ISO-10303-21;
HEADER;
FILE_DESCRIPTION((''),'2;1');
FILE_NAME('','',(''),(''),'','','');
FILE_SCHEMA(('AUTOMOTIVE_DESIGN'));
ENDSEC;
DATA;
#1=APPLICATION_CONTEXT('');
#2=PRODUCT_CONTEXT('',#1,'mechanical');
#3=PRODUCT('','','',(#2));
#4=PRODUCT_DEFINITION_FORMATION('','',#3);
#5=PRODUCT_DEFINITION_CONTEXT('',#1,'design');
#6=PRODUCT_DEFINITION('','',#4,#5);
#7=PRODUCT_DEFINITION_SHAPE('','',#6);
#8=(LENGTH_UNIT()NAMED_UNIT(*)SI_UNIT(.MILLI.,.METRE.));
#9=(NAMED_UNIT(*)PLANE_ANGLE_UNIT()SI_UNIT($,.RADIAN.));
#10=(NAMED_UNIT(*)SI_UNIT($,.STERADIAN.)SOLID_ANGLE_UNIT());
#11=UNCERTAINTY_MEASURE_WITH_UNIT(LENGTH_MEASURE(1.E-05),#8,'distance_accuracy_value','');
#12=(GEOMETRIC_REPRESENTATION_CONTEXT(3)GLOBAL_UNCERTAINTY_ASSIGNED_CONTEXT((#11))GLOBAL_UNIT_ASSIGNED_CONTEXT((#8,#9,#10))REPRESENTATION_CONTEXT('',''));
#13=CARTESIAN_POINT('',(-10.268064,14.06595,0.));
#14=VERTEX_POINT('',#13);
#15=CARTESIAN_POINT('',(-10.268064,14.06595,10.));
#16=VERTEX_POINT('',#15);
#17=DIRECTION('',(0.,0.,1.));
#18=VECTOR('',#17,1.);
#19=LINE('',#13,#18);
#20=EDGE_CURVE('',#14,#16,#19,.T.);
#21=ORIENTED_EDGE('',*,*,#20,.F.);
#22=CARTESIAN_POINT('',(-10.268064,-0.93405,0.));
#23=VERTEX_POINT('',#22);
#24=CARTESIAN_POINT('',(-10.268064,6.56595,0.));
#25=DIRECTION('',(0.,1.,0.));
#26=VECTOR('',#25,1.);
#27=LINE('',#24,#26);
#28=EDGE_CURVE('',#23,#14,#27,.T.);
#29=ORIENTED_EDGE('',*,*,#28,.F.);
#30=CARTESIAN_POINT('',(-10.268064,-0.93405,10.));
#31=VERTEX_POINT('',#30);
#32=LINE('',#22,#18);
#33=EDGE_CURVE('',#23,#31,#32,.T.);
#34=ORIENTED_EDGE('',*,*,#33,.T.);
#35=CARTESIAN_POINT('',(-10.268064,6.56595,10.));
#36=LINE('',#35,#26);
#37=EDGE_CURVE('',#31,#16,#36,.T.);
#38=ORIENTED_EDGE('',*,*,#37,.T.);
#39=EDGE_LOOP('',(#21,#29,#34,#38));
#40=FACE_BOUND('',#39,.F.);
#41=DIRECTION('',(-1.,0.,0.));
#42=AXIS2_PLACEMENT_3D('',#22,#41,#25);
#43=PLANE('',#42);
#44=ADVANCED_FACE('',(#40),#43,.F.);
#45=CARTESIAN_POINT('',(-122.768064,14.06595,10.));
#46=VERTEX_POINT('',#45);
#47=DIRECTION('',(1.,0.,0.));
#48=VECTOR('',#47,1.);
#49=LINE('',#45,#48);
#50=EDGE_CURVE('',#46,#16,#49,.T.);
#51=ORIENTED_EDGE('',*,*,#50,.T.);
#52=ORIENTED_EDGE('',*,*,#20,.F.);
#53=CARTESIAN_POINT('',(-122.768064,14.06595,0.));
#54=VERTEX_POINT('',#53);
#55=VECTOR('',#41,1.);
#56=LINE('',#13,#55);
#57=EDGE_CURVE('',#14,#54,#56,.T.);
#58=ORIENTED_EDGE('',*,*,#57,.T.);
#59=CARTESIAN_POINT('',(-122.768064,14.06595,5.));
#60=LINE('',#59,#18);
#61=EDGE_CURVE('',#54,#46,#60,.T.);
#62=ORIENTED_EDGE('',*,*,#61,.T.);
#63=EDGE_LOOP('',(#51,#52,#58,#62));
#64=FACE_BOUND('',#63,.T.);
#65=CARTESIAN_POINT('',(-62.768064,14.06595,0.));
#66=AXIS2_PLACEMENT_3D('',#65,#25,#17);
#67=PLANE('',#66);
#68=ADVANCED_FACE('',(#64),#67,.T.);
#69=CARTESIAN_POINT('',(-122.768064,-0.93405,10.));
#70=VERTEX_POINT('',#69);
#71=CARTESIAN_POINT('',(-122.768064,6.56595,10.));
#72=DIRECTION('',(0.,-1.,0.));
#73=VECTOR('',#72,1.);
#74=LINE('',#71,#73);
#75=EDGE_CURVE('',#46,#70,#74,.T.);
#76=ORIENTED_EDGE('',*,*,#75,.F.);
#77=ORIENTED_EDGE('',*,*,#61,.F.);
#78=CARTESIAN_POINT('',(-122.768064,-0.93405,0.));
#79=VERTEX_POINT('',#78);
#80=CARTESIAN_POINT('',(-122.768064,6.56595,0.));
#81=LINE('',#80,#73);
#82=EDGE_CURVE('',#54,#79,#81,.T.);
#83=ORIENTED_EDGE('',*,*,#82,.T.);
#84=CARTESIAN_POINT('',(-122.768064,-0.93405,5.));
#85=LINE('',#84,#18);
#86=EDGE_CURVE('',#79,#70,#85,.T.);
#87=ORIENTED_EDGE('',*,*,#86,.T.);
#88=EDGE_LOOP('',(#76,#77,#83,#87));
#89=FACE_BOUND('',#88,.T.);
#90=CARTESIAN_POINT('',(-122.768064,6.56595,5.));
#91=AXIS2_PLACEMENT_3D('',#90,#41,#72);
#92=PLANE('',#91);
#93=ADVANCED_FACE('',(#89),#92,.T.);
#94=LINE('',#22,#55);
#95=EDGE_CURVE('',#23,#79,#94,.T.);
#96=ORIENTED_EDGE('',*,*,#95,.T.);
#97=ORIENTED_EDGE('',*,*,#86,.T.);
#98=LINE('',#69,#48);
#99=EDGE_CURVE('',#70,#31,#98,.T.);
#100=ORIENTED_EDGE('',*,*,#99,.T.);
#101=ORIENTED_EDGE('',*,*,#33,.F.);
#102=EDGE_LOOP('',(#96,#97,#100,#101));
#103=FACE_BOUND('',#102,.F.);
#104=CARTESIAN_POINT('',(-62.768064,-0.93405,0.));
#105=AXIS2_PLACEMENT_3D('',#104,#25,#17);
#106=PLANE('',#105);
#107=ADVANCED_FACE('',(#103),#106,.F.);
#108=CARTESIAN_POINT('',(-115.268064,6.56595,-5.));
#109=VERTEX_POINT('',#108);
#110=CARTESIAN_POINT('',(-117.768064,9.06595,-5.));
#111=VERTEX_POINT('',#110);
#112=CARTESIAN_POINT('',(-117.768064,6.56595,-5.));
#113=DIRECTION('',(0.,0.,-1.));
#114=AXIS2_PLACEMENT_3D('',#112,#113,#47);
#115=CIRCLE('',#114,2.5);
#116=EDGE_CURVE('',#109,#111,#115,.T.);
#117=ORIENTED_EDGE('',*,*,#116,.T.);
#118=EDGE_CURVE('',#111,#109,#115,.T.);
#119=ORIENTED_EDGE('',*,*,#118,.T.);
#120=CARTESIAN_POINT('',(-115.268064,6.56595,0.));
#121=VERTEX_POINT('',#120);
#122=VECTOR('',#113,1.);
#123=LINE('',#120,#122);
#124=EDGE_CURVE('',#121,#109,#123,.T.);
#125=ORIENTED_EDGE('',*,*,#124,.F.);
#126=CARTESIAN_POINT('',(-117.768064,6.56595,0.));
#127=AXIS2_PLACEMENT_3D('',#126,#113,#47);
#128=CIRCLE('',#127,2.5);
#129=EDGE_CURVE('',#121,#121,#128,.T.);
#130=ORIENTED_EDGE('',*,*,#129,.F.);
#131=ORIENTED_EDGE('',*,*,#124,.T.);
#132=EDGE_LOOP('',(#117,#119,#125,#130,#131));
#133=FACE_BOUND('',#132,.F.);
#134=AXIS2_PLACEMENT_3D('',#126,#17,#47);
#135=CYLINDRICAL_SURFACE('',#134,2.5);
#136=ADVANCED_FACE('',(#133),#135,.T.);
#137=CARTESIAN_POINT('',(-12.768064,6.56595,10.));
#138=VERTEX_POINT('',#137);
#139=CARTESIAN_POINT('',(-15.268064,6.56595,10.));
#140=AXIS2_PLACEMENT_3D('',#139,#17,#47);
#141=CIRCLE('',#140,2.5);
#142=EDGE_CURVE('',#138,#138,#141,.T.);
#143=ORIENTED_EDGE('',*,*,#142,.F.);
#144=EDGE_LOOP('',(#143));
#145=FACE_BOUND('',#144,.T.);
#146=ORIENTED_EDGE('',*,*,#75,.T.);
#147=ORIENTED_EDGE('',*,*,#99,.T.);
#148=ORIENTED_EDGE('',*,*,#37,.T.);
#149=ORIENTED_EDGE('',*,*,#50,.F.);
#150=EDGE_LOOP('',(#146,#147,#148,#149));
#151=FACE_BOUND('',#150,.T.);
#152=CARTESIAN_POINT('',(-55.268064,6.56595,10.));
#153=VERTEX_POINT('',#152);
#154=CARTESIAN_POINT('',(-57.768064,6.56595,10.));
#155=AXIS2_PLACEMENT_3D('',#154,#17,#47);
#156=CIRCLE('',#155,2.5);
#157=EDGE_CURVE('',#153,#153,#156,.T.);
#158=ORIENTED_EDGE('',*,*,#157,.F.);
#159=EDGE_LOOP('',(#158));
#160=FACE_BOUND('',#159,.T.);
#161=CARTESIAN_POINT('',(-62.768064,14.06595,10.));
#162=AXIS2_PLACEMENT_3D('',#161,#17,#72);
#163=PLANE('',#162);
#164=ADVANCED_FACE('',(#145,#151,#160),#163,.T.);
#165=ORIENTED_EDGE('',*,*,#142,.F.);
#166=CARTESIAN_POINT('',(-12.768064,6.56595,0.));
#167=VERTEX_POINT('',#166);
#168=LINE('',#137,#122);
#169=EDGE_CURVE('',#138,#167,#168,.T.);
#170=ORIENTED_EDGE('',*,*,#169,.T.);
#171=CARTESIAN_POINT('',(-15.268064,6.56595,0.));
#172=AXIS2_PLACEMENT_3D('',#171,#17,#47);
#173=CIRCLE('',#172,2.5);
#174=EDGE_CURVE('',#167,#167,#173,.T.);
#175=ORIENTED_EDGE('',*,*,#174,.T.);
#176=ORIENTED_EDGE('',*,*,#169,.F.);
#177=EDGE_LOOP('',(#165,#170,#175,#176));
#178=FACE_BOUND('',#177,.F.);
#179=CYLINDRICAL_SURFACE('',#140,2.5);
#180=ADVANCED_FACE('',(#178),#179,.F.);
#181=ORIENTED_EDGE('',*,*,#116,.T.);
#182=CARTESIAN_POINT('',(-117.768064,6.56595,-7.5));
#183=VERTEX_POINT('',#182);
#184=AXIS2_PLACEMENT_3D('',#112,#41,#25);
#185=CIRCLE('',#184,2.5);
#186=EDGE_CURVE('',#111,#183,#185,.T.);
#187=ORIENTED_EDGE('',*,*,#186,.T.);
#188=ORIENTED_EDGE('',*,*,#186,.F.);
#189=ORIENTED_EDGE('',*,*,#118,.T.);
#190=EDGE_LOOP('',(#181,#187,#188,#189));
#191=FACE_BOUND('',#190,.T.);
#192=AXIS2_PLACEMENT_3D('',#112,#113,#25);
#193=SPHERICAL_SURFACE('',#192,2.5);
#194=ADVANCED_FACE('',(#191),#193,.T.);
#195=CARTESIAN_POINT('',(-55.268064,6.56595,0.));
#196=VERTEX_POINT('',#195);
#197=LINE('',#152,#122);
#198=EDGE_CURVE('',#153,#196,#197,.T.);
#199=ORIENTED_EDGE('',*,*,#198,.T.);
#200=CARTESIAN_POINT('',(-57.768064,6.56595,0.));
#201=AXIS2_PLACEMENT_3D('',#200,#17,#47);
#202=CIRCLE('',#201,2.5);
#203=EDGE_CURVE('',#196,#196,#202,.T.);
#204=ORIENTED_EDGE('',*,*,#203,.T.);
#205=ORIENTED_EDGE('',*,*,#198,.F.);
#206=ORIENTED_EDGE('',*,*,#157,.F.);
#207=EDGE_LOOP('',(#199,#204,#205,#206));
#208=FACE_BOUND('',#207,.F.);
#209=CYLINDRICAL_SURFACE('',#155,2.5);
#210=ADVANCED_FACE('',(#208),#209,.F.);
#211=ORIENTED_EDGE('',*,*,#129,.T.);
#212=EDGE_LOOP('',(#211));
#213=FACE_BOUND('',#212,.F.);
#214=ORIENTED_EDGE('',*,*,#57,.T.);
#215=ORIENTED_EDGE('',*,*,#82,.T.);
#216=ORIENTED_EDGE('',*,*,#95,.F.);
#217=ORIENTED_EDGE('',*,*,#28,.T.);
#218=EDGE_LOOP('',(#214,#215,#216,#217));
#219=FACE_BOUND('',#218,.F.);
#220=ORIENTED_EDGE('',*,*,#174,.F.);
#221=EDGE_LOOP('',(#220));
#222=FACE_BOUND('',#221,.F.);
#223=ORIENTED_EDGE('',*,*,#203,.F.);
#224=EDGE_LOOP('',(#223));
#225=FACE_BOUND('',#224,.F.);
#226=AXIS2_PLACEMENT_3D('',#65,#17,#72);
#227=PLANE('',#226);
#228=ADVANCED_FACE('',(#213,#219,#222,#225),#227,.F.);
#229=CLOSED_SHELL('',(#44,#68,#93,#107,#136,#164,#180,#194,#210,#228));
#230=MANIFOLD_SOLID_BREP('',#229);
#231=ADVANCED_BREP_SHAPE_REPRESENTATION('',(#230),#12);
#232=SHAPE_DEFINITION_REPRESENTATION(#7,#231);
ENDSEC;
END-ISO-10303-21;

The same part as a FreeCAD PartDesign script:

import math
import FreeCAD as App
import Part
import Sketcher

V = App.Vector
Q = App.Units.Quantity


def add_polygon(sketch, points):
    """Adds a closed chain of lines whose ends are joined by coincident constraints."""
    first, n = sketch.GeometryCount, len(points)
    for a, b in zip(points, points[1:] + points[:1]):
        sketch.addGeometry(Part.LineSegment(App.Vector(*a, 0), App.Vector(*b, 0)), False)
    for i in range(n):
        sketch.addConstraint(Sketcher.Constraint("Coincident", first + i, 2, first + (i + 1) % n, 1))

doc = App.newDocument("Part")
body = doc.addObject("PartDesign::Body", "Body")

sketch1 = doc.addObject("Sketcher::SketchObject", "Sketch")
body.addObject(sketch1)
sketch1.AttachmentSupport = (doc.XY_Plane, [""])
sketch1.MapMode = "FlatFace"
add_polygon(sketch1, [(-62.768064, 14.06595), (-62.768064, -0.93405), (-10.268064, -0.93405), (-10.268064, 14.06595)])
sketch1.addConstraint(Sketcher.Constraint("Vertical", 0))
sketch1.addConstraint(Sketcher.Constraint("Horizontal", 1))
sketch1.addConstraint(Sketcher.Constraint("Vertical", 2))
sketch1.addConstraint(Sketcher.Constraint("Horizontal", 3))
sketch1.addConstraint(Sketcher.Constraint("DistanceY", 0, 2, 0, 1, Q("15 mm")))
sketch1.addConstraint(Sketcher.Constraint("DistanceX", 1, 1, 1, 2, Q("52.5 mm")))
sketch1.addConstraint(Sketcher.Constraint("DistanceY", 0, 2, -1, 1, Q("0.93405 mm")))
sketch1.addConstraint(Sketcher.Constraint("DistanceX", 0, 2, -1, 1, Q("62.768064 mm")))
pad1 = doc.addObject("PartDesign::Pad", "Pad")
body.addObject(pad1)
pad1.Profile = sketch1
pad1.Length = 10

sketch2 = doc.addObject("Sketcher::SketchObject", "Sketch001")
body.addObject(sketch2)
sketch2.AttachmentSupport = (doc.XY_Plane, [""])
sketch2.MapMode = "FlatFace"
sketch2.AttachmentOffset = App.Placement(V(0, 0, 10), App.Rotation())
sketch2.addGeometry(Part.Circle(V(-15.268064, 6.56595, 0), V(0, 0, 1), 2.5), False)
sketch2.addGeometry(Part.Circle(V(-57.768064, 6.56595, 0), V(0, 0, 1), 2.5), False)
sketch2.addConstraint(Sketcher.Constraint("Equal", 0, 1))
sketch2.addConstraint(Sketcher.Constraint("Horizontal", 0, 3, 1, 3))
sketch2.addConstraint(Sketcher.Constraint("Diameter", 0, Q("5 mm")))
sketch2.addConstraint(Sketcher.Constraint("DistanceX", 1, 3, 0, 3, Q("42.5 mm")))
sketch2.addConstraint(Sketcher.Constraint("DistanceY", -1, 1, 0, 3, Q("6.56595 mm")))
sketch2.addConstraint(Sketcher.Constraint("DistanceX", 0, 3, -1, 1, Q("15.268064 mm")))
pocket1 = doc.addObject("PartDesign::Pocket", "Pocket")
body.addObject(pocket1)
pocket1.Profile = sketch2
pocket1.Length = 25

sketch3 = doc.addObject("Sketcher::SketchObject", "Sketch002")
body.addObject(sketch3)
sketch3.AttachmentSupport = (doc.YZ_Plane, [""])
sketch3.MapMode = "FlatFace"
sketch3.AttachmentOffset = App.Placement(V(0, 0, -62.768064), App.Rotation())
add_polygon(sketch3, [(14.06595, 10), (14.06595, 0), (-0.93405, 0), (-0.93405, 10)])
sketch3.addConstraint(Sketcher.Constraint("Vertical", 0))
sketch3.addConstraint(Sketcher.Constraint("Horizontal", 1))
sketch3.addConstraint(Sketcher.Constraint("Vertical", 2))
sketch3.addConstraint(Sketcher.Constraint("Horizontal", 3))
sketch3.addConstraint(Sketcher.Constraint("PointOnObject", 0, 2, -1))
sketch3.addConstraint(Sketcher.Constraint("DistanceX", 1, 2, 1, 1, Q("15 mm")))
sketch3.addConstraint(Sketcher.Constraint("DistanceY", 0, 2, 0, 1, Q("10 mm")))
sketch3.addConstraint(Sketcher.Constraint("DistanceX", -1, 1, 0, 2, Q("14.06595 mm")))
pad2 = doc.addObject("PartDesign::Pad", "Pad001")
body.addObject(pad2)
pad2.Profile = sketch3
pad2.Length = 60
pad2.Reversed = True

sketch4 = doc.addObject("Sketcher::SketchObject", "Sketch003")
body.addObject(sketch4)
sketch4.AttachmentSupport = (doc.XY_Plane, [""])
sketch4.MapMode = "FlatFace"
sketch4.addGeometry(Part.Circle(V(-117.768064, 6.56595, 0), V(0, 0, 1), 2.5), False)
sketch4.addConstraint(Sketcher.Constraint("Diameter", 0, Q("5 mm")))
sketch4.addConstraint(Sketcher.Constraint("DistanceY", -1, 1, 0, 3, Q("6.56595 mm")))
sketch4.addConstraint(Sketcher.Constraint("DistanceX", 0, 3, -1, 1, Q("117.768064 mm")))
pad3 = doc.addObject("PartDesign::Pad", "Pad002")
body.addObject(pad3)
pad3.Profile = sketch4
pad3.Length = 5
pad3.Reversed = True

sketch5 = doc.addObject("Sketcher::SketchObject", "Sketch004")
body.addObject(sketch5)
sketch5.AttachmentSupport = (doc.YZ_Plane, [""])
sketch5.MapMode = "FlatFace"
sketch5.AttachmentOffset = App.Placement(V(0, 0, -117.768064), App.Rotation())
sketch5.addGeometry(Part.LineSegment(V(6.56595, -5, 0), V(9.06595, -5, 0)), False)
sketch5.addGeometry(Part.ArcOfCircle(Part.Circle(V(6.56595, -5, 0), V(0, 0, 1), 2.5), math.radians(-90), math.radians(0)), False)
sketch5.addGeometry(Part.LineSegment(V(6.56595, -7.5, 0), V(6.56595, -5, 0)), False)
sketch5.addGeometry(Part.LineSegment(V(6.56595, -5, 0), V(6.56595, -7.5, 0)), True)
sketch5.addConstraint(Sketcher.Constraint("Coincident", 0, 2, 1, 2))
sketch5.addConstraint(Sketcher.Constraint("Coincident", 1, 1, 2, 1))
sketch5.addConstraint(Sketcher.Constraint("Coincident", 2, 2, 0, 1))
sketch5.addConstraint(Sketcher.Constraint("Horizontal", 0))
sketch5.addConstraint(Sketcher.Constraint("Vertical", 2))
sketch5.addConstraint(Sketcher.Constraint("Vertical", 3))
sketch5.addConstraint(Sketcher.Constraint("Coincident", 2, 2, 1, 3))
sketch5.addConstraint(Sketcher.Constraint("Coincident", 3, 1, 1, 3))
sketch5.addConstraint(Sketcher.Constraint("Equal", 2, 3))
sketch5.addConstraint(Sketcher.Constraint("Radius", 1, Q("2.5 mm")))
sketch5.addConstraint(Sketcher.Constraint("DistanceY", 1, 3, -1, 1, Q("5 mm")))
sketch5.addConstraint(Sketcher.Constraint("DistanceX", -1, 1, 1, 3, Q("6.56595 mm")))
revolution = doc.addObject("PartDesign::Revolution", "Revolution")
body.addObject(revolution)
revolution.Profile = sketch5
revolution.ReferenceAxis = (sketch5, ["Axis0"])
revolution.Angle = 360

doc.recompute()
